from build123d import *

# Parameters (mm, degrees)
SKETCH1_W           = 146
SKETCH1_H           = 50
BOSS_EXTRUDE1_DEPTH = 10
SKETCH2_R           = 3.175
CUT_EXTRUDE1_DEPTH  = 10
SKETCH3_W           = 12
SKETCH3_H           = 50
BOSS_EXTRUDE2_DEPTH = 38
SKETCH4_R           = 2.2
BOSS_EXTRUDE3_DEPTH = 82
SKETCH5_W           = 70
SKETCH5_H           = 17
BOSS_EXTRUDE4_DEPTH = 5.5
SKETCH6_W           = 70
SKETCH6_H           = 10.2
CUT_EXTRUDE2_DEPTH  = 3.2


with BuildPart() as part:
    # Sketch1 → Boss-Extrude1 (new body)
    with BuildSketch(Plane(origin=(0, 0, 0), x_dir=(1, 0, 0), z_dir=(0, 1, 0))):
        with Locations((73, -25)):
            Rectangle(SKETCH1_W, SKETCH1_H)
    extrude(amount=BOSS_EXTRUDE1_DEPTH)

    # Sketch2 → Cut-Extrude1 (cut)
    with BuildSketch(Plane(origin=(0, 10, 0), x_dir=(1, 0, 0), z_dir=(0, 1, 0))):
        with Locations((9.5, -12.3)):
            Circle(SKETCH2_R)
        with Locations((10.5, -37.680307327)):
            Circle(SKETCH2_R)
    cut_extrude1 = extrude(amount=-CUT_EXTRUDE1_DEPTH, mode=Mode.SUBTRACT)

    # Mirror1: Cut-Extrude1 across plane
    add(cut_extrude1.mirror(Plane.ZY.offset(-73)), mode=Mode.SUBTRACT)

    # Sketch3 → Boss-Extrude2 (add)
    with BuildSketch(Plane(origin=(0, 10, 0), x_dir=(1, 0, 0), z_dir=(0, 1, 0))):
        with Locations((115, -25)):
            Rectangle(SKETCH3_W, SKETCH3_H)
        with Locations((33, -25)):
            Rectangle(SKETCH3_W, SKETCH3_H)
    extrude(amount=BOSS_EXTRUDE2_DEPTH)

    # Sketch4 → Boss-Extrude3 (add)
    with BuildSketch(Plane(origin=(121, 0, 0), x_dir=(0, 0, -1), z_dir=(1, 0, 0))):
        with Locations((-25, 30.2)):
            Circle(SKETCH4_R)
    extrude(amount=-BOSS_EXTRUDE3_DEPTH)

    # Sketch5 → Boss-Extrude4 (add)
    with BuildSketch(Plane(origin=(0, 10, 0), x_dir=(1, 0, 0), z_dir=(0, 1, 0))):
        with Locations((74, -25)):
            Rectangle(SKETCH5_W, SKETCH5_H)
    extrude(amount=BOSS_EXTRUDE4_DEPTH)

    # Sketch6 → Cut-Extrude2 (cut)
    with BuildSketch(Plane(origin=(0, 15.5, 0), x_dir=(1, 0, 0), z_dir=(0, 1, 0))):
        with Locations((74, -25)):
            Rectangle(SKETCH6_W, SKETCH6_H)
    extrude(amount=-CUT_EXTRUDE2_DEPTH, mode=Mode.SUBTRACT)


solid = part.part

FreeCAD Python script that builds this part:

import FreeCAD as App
import Part
import Sketcher
from FreeCAD import Vector


def add_polygon(sketch, points):
    """Adds a closed chain of lines whose ends are joined by coincident constraints."""
    first, n = sketch.GeometryCount, len(points)
    for a, b in zip(points, points[1:] + points[:1]):
        sketch.addGeometry(Part.LineSegment(App.Vector(*a, 0), App.Vector(*b, 0)), False)
    for i in range(n):
        sketch.addConstraint(Sketcher.Constraint("Coincident", first + i, 2, first + (i + 1) % n, 1))

doc = App.newDocument("Part")
body = doc.addObject("PartDesign::Body", "Body")

sketch1 = body.newObject("Sketcher::SketchObject", "Sketch")
sketch1.AttachmentSupport = (doc.getObject("XZ_Plane"), [""])
sketch1.MapMode = "FlatFace"
add_polygon(sketch1, [(0, 0), (0, 50), (146, 50), (146, 0)])
sketch1.addConstraint(Sketcher.Constraint("Vertical", 0))
sketch1.addConstraint(Sketcher.Constraint("Horizontal", 1))
sketch1.addConstraint(Sketcher.Constraint("Vertical", 2))
sketch1.addConstraint(Sketcher.Constraint("Horizontal", 3))
sketch1.addConstraint(Sketcher.Constraint("Coincident", 3, 2, -1, 1))
sketch1.addConstraint(Sketcher.Constraint("DistanceX", 1, 1, 1, 2, 146.0))
sketch1.addConstraint(Sketcher.Constraint("DistanceY", 0, 1, 0, 2, 50.0))
pad1 = body.newObject("PartDesign::Pad", "Pad")
pad1.Profile = sketch1
pad1.Length = 10
pad1.Reversed = True

sketch2 = body.newObject("Sketcher::SketchObject", "Sketch001")
sketch2.AttachmentSupport = (doc.getObject("XZ_Plane"), [""])
sketch2.MapMode = "FlatFace"
sketch2.AttachmentOffset = App.Placement(Vector(0, 0, -10), App.Rotation())
sketch2.addGeometry(Part.Circle(Vector(9.5, 12.3, 0), Vector(0, 0, 1), 3.175), False)
sketch2.addGeometry(Part.Circle(Vector(10.5, 37.680307, 0), Vector(0, 0, 1), 3.175), False)
sketch2.addConstraint(Sketcher.Constraint("Equal", 0, 1))
sketch2.addConstraint(Sketcher.Constraint("Diameter", 0, 6.35))
sketch2.addConstraint(Sketcher.Constraint("DistanceX", 0, 3, 1, 3, 1.0))
sketch2.addConstraint(Sketcher.Constraint("DistanceX", -1, 1, 0, 3, 9.5))
sketch2.addConstraint(Sketcher.Constraint("DistanceY", -1, 1, 0, 3, 12.3))
sketch2.addConstraint(Sketcher.Constraint("DistanceY", -1, 1, 1, 3, 37.680307))
pocket1 = body.newObject("PartDesign::Pocket", "Pocket")
pocket1.Profile = sketch2
pocket1.Length = 10
pocket1.Reversed = True
doc.recompute()

datumplane = body.newObject("PartDesign::Plane", "DatumPlane")
datumplane.AttachmentSupport = (doc.getObject("YZ_Plane"), [""])
datumplane.MapMode = "FlatFace"
datumplane.AttachmentOffset = App.Placement(Vector(0, 0, 73), App.Rotation())
mirrored = body.newObject("PartDesign::Mirrored", "Mirrored")
mirrored.Originals = [pocket1]
mirrored.MirrorPlane = (datumplane, [""])
body.Tip = mirrored

sketch3 = body.newObject("Sketcher::SketchObject", "Sketch002")
sketch3.AttachmentSupport = (doc.getObject("XZ_Plane"), [""])
sketch3.MapMode = "FlatFace"
sketch3.AttachmentOffset = App.Placement(Vector(0, 0, -10), App.Rotation())
add_polygon(sketch3, [(109, 0), (109, 50), (121, 50), (121, 0)])
add_polygon(sketch3, [(27, 0), (27, 50), (39, 50), (39, 0)])
sketch3.addConstraint(Sketcher.Constraint("Vertical", 0))
sketch3.addConstraint(Sketcher.Constraint("Horizontal", 1))
sketch3.addConstraint(Sketcher.Constraint("Vertical", 2))
sketch3.addConstraint(Sketcher.Constraint("Horizontal", 3))
sketch3.addConstraint(Sketcher.Constraint("Vertical", 4))
sketch3.addConstraint(Sketcher.Constraint("Horizontal", 5))
sketch3.addConstraint(Sketcher.Constraint("Vertical", 6))
sketch3.addConstraint(Sketcher.Constraint("Horizontal", 7))
sketch3.addConstraint(Sketcher.Constraint("PointOnObject", 2, 2, -1))
sketch3.addConstraint(Sketcher.Constraint("PointOnObject", 6, 2, -1))
sketch3.addConstraint(Sketcher.Constraint("Horizontal", 1, 2, 4, 2))
sketch3.addConstraint(Sketcher.Constraint("Equal", 3, 5))
sketch3.addConstraint(Sketcher.Constraint("DistanceX", 1, 1, 1, 2, 12.0))
sketch3.addConstraint(Sketcher.Constraint("DistanceY", 0, 1, 0, 2, 50.0))
sketch3.addConstraint(Sketcher.Constraint("DistanceX", -1, 1, 0, 2, 109.0))
sketch3.addConstraint(Sketcher.Constraint("DistanceX", -1, 1, 4, 2, 27.0))
pad2 = body.newObject("PartDesign::Pad", "Pad001")
pad2.Profile = sketch3
pad2.Length = 38
pad2.Reversed = True

sketch4 = body.newObject("Sketcher::SketchObject", "Sketch003")
sketch4.AttachmentSupport = (doc.getObject("YZ_Plane"), [""])
sketch4.MapMode = "FlatFace"
sketch4.AttachmentOffset = App.Placement(Vector(0, 0, 121), App.Rotation())
sketch4.addGeometry(Part.Circle(Vector(30.2, 25, 0), Vector(0, 0, 1), 2.2), False)
sketch4.addConstraint(Sketcher.Constraint("Diameter", 0, 4.4))
sketch4.addConstraint(Sketcher.Constraint("DistanceY", -1, 1, 0, 3, 25.0))
sketch4.addConstraint(Sketcher.Constraint("DistanceX", -1, 1, 0, 3, 30.2))
pad3 = body.newObject("PartDesign::Pad", "Pad002")
pad3.Profile = sketch4
pad3.Length = 82
pad3.Reversed = True

sketch5 = body.newObject("Sketcher::SketchObject", "Sketch004")
sketch5.AttachmentSupport = (doc.getObject("XZ_Plane"), [""])
sketch5.MapMode = "FlatFace"
sketch5.AttachmentOffset = App.Placement(Vector(0, 0, -10), App.Rotation())
add_polygon(sketch5, [(39, 16.5), (39, 33.5), (109, 33.5), (109, 16.5)])
sketch5.addConstraint(Sketcher.Constraint("Vertical", 0))
sketch5.addConstraint(Sketcher.Constraint("Horizontal", 1))
sketch5.addConstraint(Sketcher.Constraint("Vertical", 2))
sketch5.addConstraint(Sketcher.Constraint("Horizontal", 3))
sketch5.addConstraint(Sketcher.Constraint("DistanceX", 1, 1, 1, 2, 70.0))
sketch5.addConstraint(Sketcher.Constraint("DistanceY", 0, 1, 0, 2, 17.0))
sketch5.addConstraint(Sketcher.Constraint("DistanceX", -1, 1, 0, 2, 39.0))
sketch5.addConstraint(Sketcher.Constraint("DistanceY", -1, 1, 0, 2, 33.5))
pad4 = body.newObject("PartDesign::Pad", "Pad003")
pad4.Profile = sketch5
pad4.Length = 5.5
pad4.Reversed = True

sketch6 = body.newObject("Sketcher::SketchObject", "Sketch005")
sketch6.AttachmentSupport = (doc.getObject("XZ_Plane"), [""])
sketch6.MapMode = "FlatFace"
sketch6.AttachmentOffset = App.Placement(Vector(0, 0, -15.5), App.Rotation())
add_polygon(sketch6, [(39, 19.9), (39, 30.1), (109, 30.1), (109, 19.9)])
sketch6.addConstraint(Sketcher.Constraint("Vertical", 0))
sketch6.addConstraint(Sketcher.Constraint("Horizontal", 1))
sketch6.addConstraint(Sketcher.Constraint("Vertical", 2))
sketch6.addConstraint(Sketcher.Constraint("Horizontal", 3))
sketch6.addConstraint(Sketcher.Constraint("DistanceX", 1, 1, 1, 2, 70.0))
sketch6.addConstraint(Sketcher.Constraint("DistanceY", 0, 1, 0, 2, 10.2))
sketch6.addConstraint(Sketcher.Constraint("DistanceX", -1, 1, 0, 2, 39.0))
sketch6.addConstraint(Sketcher.Constraint("DistanceY", -1, 1, 0, 2, 30.1))
pocket2 = body.newObject("PartDesign::Pocket", "Pocket001")
pocket2.Profile = sketch6
pocket2.Length = 3.2
pocket2.Reversed = True

doc.recompute()
